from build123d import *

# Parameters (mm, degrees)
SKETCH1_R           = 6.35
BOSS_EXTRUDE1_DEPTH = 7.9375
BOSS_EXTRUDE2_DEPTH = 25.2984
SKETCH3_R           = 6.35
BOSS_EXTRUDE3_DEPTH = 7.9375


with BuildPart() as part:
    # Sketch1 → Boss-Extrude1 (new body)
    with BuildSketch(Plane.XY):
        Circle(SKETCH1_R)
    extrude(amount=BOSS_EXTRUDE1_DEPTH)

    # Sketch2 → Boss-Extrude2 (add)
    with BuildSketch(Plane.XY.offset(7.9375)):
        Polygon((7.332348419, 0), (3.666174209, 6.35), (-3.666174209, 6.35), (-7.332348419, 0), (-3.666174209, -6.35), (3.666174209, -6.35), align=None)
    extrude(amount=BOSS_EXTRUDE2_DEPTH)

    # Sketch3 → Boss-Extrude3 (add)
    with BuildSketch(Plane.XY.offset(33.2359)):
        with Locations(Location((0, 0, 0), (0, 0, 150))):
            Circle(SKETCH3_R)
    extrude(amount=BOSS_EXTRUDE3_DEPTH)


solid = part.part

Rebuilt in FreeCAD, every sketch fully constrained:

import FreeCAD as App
import Part
import Sketcher

V = App.Vector
Q = App.Units.Quantity


def add_polygon(sketch, points):
    """Adds a closed chain of lines whose ends are joined by coincident constraints."""
    first, n = sketch.GeometryCount, len(points)
    for a, b in zip(points, points[1:] + points[:1]):
        sketch.addGeometry(Part.LineSegment(App.Vector(*a, 0), App.Vector(*b, 0)), False)
    for i in range(n):
        sketch.addConstraint(Sketcher.Constraint("Coincident", first + i, 2, first + (i + 1) % n, 1))

doc = App.newDocument("Part")
params = doc.addObject("Spreadsheet::Sheet", "Params")
for row, (alias, value) in enumerate([
    ("sketch1_diameter", "0.5 in"),
    ("pad1_length", "0.3125 in"),
    ("pad2_length", "0.996 in"),
    ("sketch3_diameter", "0.5 in"),
    ("pad3_length", "0.3125 in"),
], start=1):
    params.set(f"A{row}", alias)
    params.set(f"B{row}", "=" + value)
    params.setAlias(f"B{row}", alias)

body = doc.addObject("PartDesign::Body", "Body")

# Sketch on XY plane
sketch1 = body.newObject("Sketcher::SketchObject", "Sketch")
sketch1.AttachmentSupport = (doc.getObject("XY_Plane"), [""])
sketch1.MapMode = "FlatFace"
sketch1.addGeometry(Part.Circle(V(0, 0, 0), V(0, 0, 1), 6.35), False)
sketch1.addConstraint(Sketcher.Constraint("Coincident", 0, 3, -1, 1))
sketch1.addConstraint(Sketcher.Constraint("Diameter", 0, Q("0.5 in")))
sketch1.setExpression("Constraints[1]", "Params.sketch1_diameter")
pad1 = body.newObject("PartDesign::Pad", "Pad")
pad1.Profile = sketch1
pad1.setExpression("Length", "Params.pad1_length")

# Sketch on XY plane
sketch2 = body.newObject("Sketcher::SketchObject", "Sketch001")
sketch2.AttachmentSupport = (doc.getObject("XY_Plane"), [""])
sketch2.MapMode = "FlatFace"
sketch2.AttachmentOffset = App.Placement(V(0, 0, 0.3125 * 25.4), App.Rotation())
add_polygon(sketch2, [(7.332348, 0), (3.666174, 6.35), (-3.666174, 6.35), (-7.332348, 0), (-3.666174, -6.35), (3.666174, -6.35)])  # lines 0-5
sketch2.addConstraint(Sketcher.Constraint("Horizontal", 1))
sketch2.addConstraint(Sketcher.Constraint("Horizontal", 4))
sketch2.addConstraint(Sketcher.Constraint("Symmetric", 0, 2, 3, 2, -1, 1))
sketch2.addConstraint(Sketcher.Constraint("Symmetric", 2, 2, 5, 2, -1, 1))
sketch2.addConstraint(Sketcher.Constraint("PointOnObject", 2, 2, -1))
sketch2.addConstraint(Sketcher.Constraint("Parallel", 2, 5))
sketch2.addConstraint(Sketcher.Constraint("Vertical", 1, 2, 3, 2))
sketch2.addConstraint(Sketcher.Constraint("Angle", 0, Q("120 deg")))
sketch2.addConstraint(Sketcher.Constraint("DistanceY", 3, 2, 1, 2, Q("0.5 in")))
sketch2.addConstraint(Sketcher.Constraint("DistanceX", 1, 2, 1, 1, 7.332348))
pad2 = body.newObject("PartDesign::Pad", "Pad001")
pad2.Profile = sketch2
pad2.setExpression("Length", "Params.pad2_length")

# Sketch on XY plane
sketch3 = body.newObject("Sketcher::SketchObject", "Sketch002")
sketch3.AttachmentSupport = (doc.getObject("XY_Plane"), [""])
sketch3.MapMode = "FlatFace"
sketch3.AttachmentOffset = App.Placement(V(0, 0, 1.3085 * 25.4), App.Rotation())
sketch3.addGeometry(Part.Circle(V(0, 0, 0), V(0, 0, 1), 6.35), False)
sketch3.addConstraint(Sketcher.Constraint("Coincident", 0, 3, -1, 1))
sketch3.addConstraint(Sketcher.Constraint("Diameter", 0, Q("0.5 in")))
sketch3.setExpression("Constraints[1]", "Params.sketch3_diameter")
pad3 = body.newObject("PartDesign::Pad", "Pad002")
pad3.Profile = sketch3
pad3.setExpression("Length", "Params.pad3_length")

doc.recompute()
